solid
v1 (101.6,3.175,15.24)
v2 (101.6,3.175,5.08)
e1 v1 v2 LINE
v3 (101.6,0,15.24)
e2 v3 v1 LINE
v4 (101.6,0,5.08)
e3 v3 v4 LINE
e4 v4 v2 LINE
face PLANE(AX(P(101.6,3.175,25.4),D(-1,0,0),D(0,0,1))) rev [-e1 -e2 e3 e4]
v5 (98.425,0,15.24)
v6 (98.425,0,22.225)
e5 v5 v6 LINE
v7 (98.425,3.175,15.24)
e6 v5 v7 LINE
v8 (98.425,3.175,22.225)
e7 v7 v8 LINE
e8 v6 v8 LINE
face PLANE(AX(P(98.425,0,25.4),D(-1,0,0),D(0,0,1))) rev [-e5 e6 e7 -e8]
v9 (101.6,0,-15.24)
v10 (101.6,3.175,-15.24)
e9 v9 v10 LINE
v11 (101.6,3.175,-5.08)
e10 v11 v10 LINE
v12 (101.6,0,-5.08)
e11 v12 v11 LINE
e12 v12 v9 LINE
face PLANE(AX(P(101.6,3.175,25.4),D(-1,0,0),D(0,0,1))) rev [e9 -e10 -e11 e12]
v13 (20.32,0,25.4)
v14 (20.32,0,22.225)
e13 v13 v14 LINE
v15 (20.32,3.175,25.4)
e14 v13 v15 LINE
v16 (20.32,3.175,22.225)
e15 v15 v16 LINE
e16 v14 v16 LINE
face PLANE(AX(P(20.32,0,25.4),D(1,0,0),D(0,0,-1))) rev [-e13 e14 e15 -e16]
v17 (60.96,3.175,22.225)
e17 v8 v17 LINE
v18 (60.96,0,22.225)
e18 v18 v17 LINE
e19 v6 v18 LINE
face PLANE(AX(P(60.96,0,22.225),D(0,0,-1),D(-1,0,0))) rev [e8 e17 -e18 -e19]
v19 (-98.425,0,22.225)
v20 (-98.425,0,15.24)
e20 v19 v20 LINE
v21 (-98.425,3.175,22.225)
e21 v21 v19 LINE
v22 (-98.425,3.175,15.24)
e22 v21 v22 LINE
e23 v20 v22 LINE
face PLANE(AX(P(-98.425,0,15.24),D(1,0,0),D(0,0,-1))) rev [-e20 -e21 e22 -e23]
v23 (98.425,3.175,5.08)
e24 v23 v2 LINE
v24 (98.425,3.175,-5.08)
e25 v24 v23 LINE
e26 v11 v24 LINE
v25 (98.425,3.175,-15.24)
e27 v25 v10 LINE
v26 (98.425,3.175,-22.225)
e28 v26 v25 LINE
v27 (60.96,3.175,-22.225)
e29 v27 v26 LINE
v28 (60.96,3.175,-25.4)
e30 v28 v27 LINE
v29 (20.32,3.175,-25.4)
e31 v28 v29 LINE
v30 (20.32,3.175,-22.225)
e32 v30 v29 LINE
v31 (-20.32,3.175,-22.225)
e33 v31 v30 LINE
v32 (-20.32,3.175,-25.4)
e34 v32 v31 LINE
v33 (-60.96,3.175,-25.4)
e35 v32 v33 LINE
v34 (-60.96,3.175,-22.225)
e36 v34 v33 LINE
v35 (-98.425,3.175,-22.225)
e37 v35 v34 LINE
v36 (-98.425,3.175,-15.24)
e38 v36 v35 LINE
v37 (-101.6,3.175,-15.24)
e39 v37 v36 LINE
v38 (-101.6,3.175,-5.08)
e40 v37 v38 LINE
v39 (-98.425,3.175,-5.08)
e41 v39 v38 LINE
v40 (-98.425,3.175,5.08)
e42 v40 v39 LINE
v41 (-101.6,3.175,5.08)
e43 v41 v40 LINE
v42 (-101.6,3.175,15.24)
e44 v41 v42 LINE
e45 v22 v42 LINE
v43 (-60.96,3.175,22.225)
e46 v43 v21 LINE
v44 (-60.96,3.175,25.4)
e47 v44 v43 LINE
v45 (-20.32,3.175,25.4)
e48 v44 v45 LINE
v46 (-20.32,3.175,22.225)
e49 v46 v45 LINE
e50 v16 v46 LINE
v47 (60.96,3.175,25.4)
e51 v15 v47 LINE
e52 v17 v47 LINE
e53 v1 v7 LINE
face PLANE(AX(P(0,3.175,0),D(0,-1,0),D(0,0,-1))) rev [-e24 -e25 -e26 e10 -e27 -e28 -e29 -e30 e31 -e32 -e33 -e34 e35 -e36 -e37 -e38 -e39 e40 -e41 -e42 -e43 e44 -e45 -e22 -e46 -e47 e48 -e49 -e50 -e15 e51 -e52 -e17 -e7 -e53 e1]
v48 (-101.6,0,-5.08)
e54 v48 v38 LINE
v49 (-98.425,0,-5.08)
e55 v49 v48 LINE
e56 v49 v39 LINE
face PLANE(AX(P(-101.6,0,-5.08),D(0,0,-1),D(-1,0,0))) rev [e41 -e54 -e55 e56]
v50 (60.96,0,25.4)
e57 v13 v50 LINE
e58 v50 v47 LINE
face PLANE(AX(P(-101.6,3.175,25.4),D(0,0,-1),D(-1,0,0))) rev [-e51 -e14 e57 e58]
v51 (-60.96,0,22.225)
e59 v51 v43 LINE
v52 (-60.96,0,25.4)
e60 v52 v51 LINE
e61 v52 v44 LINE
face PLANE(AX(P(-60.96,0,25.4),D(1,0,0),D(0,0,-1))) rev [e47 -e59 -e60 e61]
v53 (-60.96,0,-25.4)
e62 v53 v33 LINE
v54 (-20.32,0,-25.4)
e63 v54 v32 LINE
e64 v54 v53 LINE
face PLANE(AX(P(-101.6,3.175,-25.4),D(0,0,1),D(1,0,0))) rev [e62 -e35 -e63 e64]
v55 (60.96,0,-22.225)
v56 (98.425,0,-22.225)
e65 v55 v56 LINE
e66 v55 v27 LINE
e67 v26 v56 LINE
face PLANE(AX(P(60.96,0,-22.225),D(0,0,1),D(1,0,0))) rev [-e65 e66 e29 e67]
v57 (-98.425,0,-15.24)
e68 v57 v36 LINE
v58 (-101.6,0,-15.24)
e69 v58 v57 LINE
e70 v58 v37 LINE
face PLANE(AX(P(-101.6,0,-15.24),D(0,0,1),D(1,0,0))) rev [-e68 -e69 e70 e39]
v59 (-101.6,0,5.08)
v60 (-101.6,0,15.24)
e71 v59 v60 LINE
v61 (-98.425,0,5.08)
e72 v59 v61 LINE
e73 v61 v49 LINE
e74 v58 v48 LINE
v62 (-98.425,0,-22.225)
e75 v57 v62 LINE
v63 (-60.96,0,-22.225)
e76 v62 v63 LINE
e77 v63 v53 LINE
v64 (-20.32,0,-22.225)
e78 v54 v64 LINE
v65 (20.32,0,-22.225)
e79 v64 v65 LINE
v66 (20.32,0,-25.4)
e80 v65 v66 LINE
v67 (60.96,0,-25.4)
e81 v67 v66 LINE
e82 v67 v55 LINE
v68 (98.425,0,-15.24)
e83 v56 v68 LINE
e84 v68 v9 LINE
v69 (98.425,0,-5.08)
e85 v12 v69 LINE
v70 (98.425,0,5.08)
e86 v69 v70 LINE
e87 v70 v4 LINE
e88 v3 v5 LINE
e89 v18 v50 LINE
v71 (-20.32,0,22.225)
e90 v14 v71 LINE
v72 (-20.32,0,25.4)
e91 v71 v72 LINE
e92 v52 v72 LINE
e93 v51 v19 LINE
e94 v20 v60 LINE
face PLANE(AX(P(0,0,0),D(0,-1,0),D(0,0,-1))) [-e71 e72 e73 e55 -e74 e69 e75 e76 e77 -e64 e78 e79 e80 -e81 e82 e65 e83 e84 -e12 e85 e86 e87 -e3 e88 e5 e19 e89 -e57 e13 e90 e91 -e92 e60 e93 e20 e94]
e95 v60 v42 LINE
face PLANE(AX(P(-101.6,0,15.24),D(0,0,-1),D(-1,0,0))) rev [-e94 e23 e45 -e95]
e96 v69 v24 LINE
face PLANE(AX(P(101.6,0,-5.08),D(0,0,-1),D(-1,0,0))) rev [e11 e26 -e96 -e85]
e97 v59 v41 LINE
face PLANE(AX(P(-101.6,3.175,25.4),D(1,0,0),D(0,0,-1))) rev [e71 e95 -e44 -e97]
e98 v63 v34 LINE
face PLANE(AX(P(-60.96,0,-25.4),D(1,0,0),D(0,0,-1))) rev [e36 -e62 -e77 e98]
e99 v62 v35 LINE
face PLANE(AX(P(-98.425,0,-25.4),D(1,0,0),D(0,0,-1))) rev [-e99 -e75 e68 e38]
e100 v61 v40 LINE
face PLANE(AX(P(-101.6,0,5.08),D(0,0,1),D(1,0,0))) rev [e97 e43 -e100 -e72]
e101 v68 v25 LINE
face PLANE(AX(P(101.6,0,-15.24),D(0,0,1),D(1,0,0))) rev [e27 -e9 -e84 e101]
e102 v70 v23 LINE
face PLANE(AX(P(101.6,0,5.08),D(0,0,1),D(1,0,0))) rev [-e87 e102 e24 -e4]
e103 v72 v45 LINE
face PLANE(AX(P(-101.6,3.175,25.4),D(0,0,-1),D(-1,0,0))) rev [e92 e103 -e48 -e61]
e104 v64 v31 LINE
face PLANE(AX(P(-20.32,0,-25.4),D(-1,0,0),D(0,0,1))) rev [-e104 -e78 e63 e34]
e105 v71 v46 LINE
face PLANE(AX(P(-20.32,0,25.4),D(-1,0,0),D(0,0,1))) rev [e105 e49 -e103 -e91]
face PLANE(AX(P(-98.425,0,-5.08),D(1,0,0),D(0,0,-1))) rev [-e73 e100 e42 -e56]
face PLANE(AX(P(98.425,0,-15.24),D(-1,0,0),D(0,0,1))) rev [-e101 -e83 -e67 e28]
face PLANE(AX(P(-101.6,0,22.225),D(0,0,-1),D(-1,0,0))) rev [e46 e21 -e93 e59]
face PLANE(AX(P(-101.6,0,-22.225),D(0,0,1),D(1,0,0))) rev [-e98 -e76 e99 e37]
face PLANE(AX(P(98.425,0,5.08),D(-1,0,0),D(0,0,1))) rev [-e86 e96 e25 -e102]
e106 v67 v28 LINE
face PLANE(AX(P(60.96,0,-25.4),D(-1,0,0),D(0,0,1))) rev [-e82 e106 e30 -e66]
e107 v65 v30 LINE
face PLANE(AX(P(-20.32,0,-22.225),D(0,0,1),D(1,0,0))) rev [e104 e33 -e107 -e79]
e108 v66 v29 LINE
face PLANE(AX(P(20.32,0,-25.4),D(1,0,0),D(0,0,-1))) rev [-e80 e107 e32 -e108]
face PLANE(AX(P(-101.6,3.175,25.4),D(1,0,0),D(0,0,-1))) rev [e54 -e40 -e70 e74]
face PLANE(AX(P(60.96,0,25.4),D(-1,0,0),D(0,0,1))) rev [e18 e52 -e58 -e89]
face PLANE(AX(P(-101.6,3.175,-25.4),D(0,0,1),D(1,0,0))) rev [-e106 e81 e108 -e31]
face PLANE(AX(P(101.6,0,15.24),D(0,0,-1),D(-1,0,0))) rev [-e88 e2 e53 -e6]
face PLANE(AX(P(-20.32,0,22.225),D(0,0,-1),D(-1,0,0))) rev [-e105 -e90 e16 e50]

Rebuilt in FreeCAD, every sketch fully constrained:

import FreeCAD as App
import Part
import Sketcher
Q = App.Units.Quantity


def add_polygon(sketch, points):
    """Adds a closed chain of lines whose ends are joined by coincident constraints."""
    first, n = sketch.GeometryCount, len(points)
    for a, b in zip(points, points[1:] + points[:1]):
        sketch.addGeometry(Part.LineSegment(App.Vector(*a, 0), App.Vector(*b, 0)), False)
    for i in range(n):
        sketch.addConstraint(Sketcher.Constraint("Coincident", first + i, 2, first + (i + 1) % n, 1))

doc = App.newDocument("Part")
params = doc.addObject("Spreadsheet::Sheet", "Params")
for row, (alias, value) in enumerate([
    ("sketch1_width", "8 in"),
    ("sketch1_height", "2 in"),
    ("pad1_length", "0.125 in"),
    ("sketch2_width", "1.6 in"),
    ("sketch2_height", "0.125 in"),
    ("pocket1_length", "0.125 in"),
    ("linearpattern_pitch", "3.2 in"),
    ("sketch3_height", "0.4 in"),
    ("sketch3_width", "0.125 in"),
    ("pocket2_length", "0.125 in"),
    ("linearpattern2_pitch", "0.8 in"),
    ("linearpattern3_pitch", "0.8 in"),
], start=1):
    params.set(f"A{row}", alias)
    params.set(f"B{row}", "=" + value)
    params.setAlias(f"B{row}", alias)

body = doc.addObject("PartDesign::Body", "Body")

# Sketch on XZ plane
sketch1 = body.newObject("Sketcher::SketchObject", "Sketch")
sketch1.AttachmentSupport = (doc.getObject("XZ_Plane"), [""])
sketch1.MapMode = "FlatFace"
add_polygon(sketch1, [(-101.6, -25.4), (-101.6, 25.4), (101.6, 25.4), (101.6, -25.4)])  # lines 0-3
sketch1.addConstraint([
    Sketcher.Constraint("Vertical", 0),
    Sketcher.Constraint("Horizontal", 1),
    Sketcher.Constraint("Vertical", 2),
    Sketcher.Constraint("Horizontal", 3),
    Sketcher.Constraint("Symmetric", 0, 2, 2, 2, -1, 1),
    Sketcher.Constraint("DistanceX", 1, 1, 1, 2, Q("8 in")),
    Sketcher.Constraint("DistanceY", 0, 1, 0, 2, Q("2 in")),
])
sketch1.setExpression("Constraints[9]", "Params.sketch1_width")
sketch1.setExpression("Constraints[10]", "Params.sketch1_height")
pad1 = body.newObject("PartDesign::Pad", "Pad")
pad1.Profile = sketch1
pad1.setExpression("Length", "Params.pad1_length")
pad1.Reversed = True

# Sketch on XZ plane
sketch2 = body.newObject("Sketcher::SketchObject", "Sketch001")
sketch2.AttachmentSupport = (doc.getObject("XZ_Plane"), [""])
sketch2.MapMode = "FlatFace"
sketch2.AttachmentOffset = App.Placement(App.Vector(0, 0, -0.125 * 25.4), App.Rotation())
add_polygon(sketch2, [(-101.6, -25.4), (-101.6, -22.225), (-60.96, -22.225), (-60.96, -25.4)])  # lines 0-3
add_polygon(sketch2, [(-101.6, 22.225), (-101.6, 25.4), (-60.96, 25.4), (-60.96, 22.225)])  # lines 4-7
sketch2.addConstraint([
    Sketcher.Constraint("Vertical", 0),
    Sketcher.Constraint("Horizontal", 1),
    Sketcher.Constraint("Vertical", 2),
    Sketcher.Constraint("Horizontal", 3),
    Sketcher.Constraint("Vertical", 4),
    Sketcher.Constraint("Horizontal", 5),
    Sketcher.Constraint("Vertical", 6),
    Sketcher.Constraint("Horizontal", 7),
    Sketcher.Constraint("Symmetric", 3, 2, 4, 2, -1),
    Sketcher.Constraint("Symmetric", 1, 2, 6, 2, -1),
    Sketcher.Constraint("DistanceX", 1, 1, 1, 2, Q("1.6 in")),
    Sketcher.Constraint("DistanceX", 0, 2, -1, 1, Q("4 in")),
    Sketcher.Constraint("DistanceY", 2, 2, -1, 1, Q("1 in")),
    Sketcher.Constraint("DistanceY", 0, 1, 0, 2, Q("0.125 in")),
])
sketch2.setExpression("Constraints[18]", "Params.sketch2_width")
sketch2.setExpression("Constraints[21]", "Params.sketch2_height")
pocket1 = body.newObject("PartDesign::Pocket", "Pocket")
pocket1.Profile = sketch2
pocket1.setExpression("Length", "Params.pocket1_length")
pocket1.Reversed = True
doc.recompute()

linearpattern = body.newObject("PartDesign::LinearPattern", "LinearPattern")
linearpattern.Originals = [pocket1]
linearpattern.Direction = (doc.getObject("X_Axis"), [""])
linearpattern.Mode = "offset"
linearpattern.setExpression("Offset", "Params.linearpattern_pitch")
linearpattern.Occurrences = 3
body.Tip = linearpattern

# Sketch on XZ plane
sketch3 = body.newObject("Sketcher::SketchObject", "Sketch002")
sketch3.AttachmentSupport = (doc.getObject("XZ_Plane"), [""])
sketch3.MapMode = "FlatFace"
sketch3.AttachmentOffset = App.Placement(App.Vector(0, 0, -0.125 * 25.4), App.Rotation())
add_polygon(sketch3, [(-101.6, -5.08), (-101.6, 5.08), (-98.425, 5.08), (-98.425, -5.08)])  # lines 0-3
add_polygon(sketch3, [(98.425, -5.08), (98.425, 5.08), (101.6, 5.08), (101.6, -5.08)])  # lines 4-7
sketch3.addConstraint([
    Sketcher.Constraint("Vertical", 0),
    Sketcher.Constraint("Horizontal", 1),
    Sketcher.Constraint("Vertical", 2),
    Sketcher.Constraint("Horizontal", 3),
    Sketcher.Constraint("Vertical", 4),
    Sketcher.Constraint("Horizontal", 5),
    Sketcher.Constraint("Vertical", 6),
    Sketcher.Constraint("Horizontal", 7),
    Sketcher.Constraint("Symmetric", 2, 2, 4, 2, -1, 1),
    Sketcher.Constraint("Symmetric", 0, 2, 6, 2, -1, 1),
    Sketcher.Constraint("Horizontal", 1, 2, 4, 2),
    Sketcher.Constraint("DistanceY", 0, 1, 0, 2, Q("0.4 in")),
    Sketcher.Constraint("DistanceX", 0, 2, -1, 1, Q("4 in")),
    Sketcher.Constraint("DistanceX", 1, 1, 1, 2, Q("0.125 in")),
])
sketch3.setExpression("Constraints[19]", "Params.sketch3_height")
sketch3.setExpression("Constraints[21]", "Params.sketch3_width")
pocket2 = body.newObject("PartDesign::Pocket", "Pocket001")
pocket2.Profile = sketch3
pocket2.setExpression("Length", "Params.pocket2_length")
pocket2.Reversed = True
doc.recompute()

linearpattern2 = body.newObject("PartDesign::LinearPattern", "LinearPattern001")
linearpattern2.Originals = [pocket2]
linearpattern2.Direction = (doc.getObject("Z_Axis"), [""])
linearpattern2.Mode = "offset"
linearpattern2.setExpression("Offset", "Params.linearpattern2_pitch")
linearpattern2.Occurrences = 2
body.Tip = linearpattern2
doc.recompute()

linearpattern3 = body.newObject("PartDesign::LinearPattern", "LinearPattern002")
linearpattern3.Originals = [pocket2]
linearpattern3.Direction = (doc.getObject("Z_Axis"), [""])
linearpattern3.Mode = "offset"
linearpattern3.setExpression("Offset", "Params.linearpattern3_pitch")
linearpattern3.Occurrences = 2
linearpattern3.Reversed = True
body.Tip = linearpattern3

doc.recompute()
